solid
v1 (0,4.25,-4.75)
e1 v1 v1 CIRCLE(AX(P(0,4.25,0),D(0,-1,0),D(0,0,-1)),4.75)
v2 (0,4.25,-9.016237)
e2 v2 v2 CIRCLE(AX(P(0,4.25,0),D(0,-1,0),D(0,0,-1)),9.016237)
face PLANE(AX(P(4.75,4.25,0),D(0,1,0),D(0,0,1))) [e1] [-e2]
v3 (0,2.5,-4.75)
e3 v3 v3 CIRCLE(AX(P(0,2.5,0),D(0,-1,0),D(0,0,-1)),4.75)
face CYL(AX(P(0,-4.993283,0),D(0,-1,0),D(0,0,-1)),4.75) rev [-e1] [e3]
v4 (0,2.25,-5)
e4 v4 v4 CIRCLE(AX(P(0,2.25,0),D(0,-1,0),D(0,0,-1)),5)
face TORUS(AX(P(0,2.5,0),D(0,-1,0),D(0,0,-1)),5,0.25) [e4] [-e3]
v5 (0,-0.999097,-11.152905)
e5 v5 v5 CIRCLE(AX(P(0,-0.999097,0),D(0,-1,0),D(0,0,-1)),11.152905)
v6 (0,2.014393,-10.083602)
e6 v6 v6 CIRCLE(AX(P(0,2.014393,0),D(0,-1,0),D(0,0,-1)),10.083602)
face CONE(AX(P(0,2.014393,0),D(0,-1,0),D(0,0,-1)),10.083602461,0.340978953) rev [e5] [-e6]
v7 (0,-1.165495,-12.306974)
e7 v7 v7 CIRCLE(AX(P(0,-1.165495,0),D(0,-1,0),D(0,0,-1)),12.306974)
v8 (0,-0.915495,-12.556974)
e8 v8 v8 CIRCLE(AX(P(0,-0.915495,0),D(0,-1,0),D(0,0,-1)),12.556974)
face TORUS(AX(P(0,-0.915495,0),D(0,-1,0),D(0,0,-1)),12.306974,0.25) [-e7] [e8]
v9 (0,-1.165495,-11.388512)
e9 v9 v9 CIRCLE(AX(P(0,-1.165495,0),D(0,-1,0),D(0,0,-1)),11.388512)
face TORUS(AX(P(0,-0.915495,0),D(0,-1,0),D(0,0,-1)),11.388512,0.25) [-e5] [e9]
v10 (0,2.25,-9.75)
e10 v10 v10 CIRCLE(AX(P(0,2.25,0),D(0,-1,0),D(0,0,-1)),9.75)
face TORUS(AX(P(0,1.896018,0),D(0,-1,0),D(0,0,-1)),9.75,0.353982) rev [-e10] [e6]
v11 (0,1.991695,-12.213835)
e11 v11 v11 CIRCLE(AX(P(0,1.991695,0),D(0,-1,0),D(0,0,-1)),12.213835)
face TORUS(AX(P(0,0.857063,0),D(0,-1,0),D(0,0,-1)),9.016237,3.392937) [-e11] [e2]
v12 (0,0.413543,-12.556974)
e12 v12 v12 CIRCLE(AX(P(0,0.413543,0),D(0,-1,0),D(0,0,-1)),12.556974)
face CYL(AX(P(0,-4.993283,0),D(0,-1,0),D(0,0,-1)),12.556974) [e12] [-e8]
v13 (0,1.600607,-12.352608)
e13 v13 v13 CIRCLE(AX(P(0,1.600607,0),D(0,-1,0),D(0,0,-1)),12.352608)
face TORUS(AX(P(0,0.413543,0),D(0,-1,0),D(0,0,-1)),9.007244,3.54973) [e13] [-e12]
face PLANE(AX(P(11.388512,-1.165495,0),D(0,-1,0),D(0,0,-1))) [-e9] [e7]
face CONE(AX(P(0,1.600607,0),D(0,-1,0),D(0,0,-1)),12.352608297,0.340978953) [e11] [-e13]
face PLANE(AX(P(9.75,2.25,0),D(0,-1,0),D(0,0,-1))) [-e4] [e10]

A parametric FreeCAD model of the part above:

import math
import FreeCAD as App
import Part
import Sketcher
Q = App.Units.Quantity

doc = App.newDocument("Part")
body = doc.addObject("PartDesign::Body", "Body")

# Sketch on XY plane
sketch1 = body.newObject("Sketcher::SketchObject", "Sketch")
sketch1.AttachmentSupport = (doc.getObject("XY_Plane"), [""])
sketch1.MapMode = "FlatFace"
sketch1.addGeometry([
    Part.LineSegment(App.Vector(9.016237, 4.25, 0), App.Vector(4.75, 4.25, 0)),  # 0
    Part.LineSegment(App.Vector(4.75, 4.25, 0), App.Vector(4.75, 2.5, 0)),  # 1
    Part.ArcOfCircle(Part.Circle(App.Vector(5, 2.5, 0), App.Vector(0, 0, 1), 0.25), math.radians(-180), math.radians(-90)),  # 2
    Part.LineSegment(App.Vector(5, 2.25, 0), App.Vector(9.75, 2.25, 0)),  # 3
    Part.ArcOfCircle(Part.Circle(App.Vector(9.75, 1.896018, 0), App.Vector(0, 0, 1), 0.353982), math.radians(19.536655), math.radians(90)),  # 4
    Part.LineSegment(App.Vector(10.083602, 2.014393, 0), App.Vector(11.152905, -0.999097, 0)),  # 5
    Part.ArcOfCircle(Part.Circle(App.Vector(11.388512, -0.915495, 0), App.Vector(0, 0, 1), 0.25), math.radians(-160.463345), math.radians(-90)),  # 6
    Part.LineSegment(App.Vector(11.388512, -1.165495, 0), App.Vector(12.306974, -1.165495, 0)),  # 7
    Part.ArcOfCircle(Part.Circle(App.Vector(12.306974, -0.915495, 0), App.Vector(0, 0, 1), 0.25), math.radians(-90), math.radians(0)),  # 8
    Part.LineSegment(App.Vector(12.556974, -0.915495, 0), App.Vector(12.556974, 0.413543, 0)),  # 9
    Part.ArcOfCircle(Part.Circle(App.Vector(9.007244, 0.413543, 0), App.Vector(0, 0, 1), 3.54973), math.radians(0), math.radians(19.536655)),  # 10
    Part.LineSegment(App.Vector(12.352608, 1.600607, 0), App.Vector(12.213835, 1.991695, 0)),  # 11
    Part.ArcOfCircle(Part.Circle(App.Vector(9.016237, 0.857063, 0), App.Vector(0, 0, 1), 3.392937), math.radians(19.536655), math.radians(90)),  # 12
], False)
sketch1.addConstraint([
    Sketcher.Constraint("Coincident", 0, 2, 1, 1),
    Sketcher.Constraint("Tangent", 1, 2, 2, 1),
    Sketcher.Constraint("Tangent", 2, 2, 3, 1),
    Sketcher.Constraint("Tangent", 3, 2, 4, 2),
    Sketcher.Constraint("Tangent", 4, 1, 5, 1),
    Sketcher.Constraint("Tangent", 5, 2, 6, 1),
    Sketcher.Constraint("Tangent", 6, 2, 7, 1),
    Sketcher.Constraint("Tangent", 7, 2, 8, 1),
    Sketcher.Constraint("Tangent", 8, 2, 9, 1),
    Sketcher.Constraint("Tangent", 9, 2, 10, 1),
    Sketcher.Constraint("Tangent", 10, 2, 11, 1),
    Sketcher.Constraint("Tangent", 11, 2, 12, 1),
    Sketcher.Constraint("Tangent", 12, 2, 0, 1),
    Sketcher.Constraint("Horizontal", 0),
    Sketcher.Constraint("Vertical", 1),
    Sketcher.Constraint("Horizontal", 3),
    Sketcher.Constraint("Horizontal", 7),
    Sketcher.Constraint("Vertical", 9),
    Sketcher.Constraint("Equal", 2, 6),
    Sketcher.Constraint("Equal", 6, 8),
    Sketcher.Constraint("Parallel", 5, 11),
    Sketcher.Constraint("Radius", 2, Q("0.25 mm")),
    Sketcher.Constraint("DistanceX", -1, 1, 2, 3, Q("5 mm")),
    Sketcher.Constraint("DistanceX", 0, 2, 4, 3, Q("5 mm")),
    Sketcher.Constraint("DistanceY", 2, 2, 0, 2, Q("2 mm")),
    Sketcher.Constraint("DistanceY", -1, 1, 2, 3, Q("2.5 mm")),
    Sketcher.Constraint("Radius", 10, Q("3.54973 mm")),
    Sketcher.Constraint("Radius", 4, Q("0.353982 mm")),
    Sketcher.Constraint("Radius", 12, Q("3.392937 mm")),
    Sketcher.Constraint("DistanceX", 7, 1, 7, 2, Q("0.918462 mm")),
    Sketcher.Constraint("DistanceY", 8, 3, 10, 2, Q("2.516102 mm")),
    Sketcher.Constraint("DistanceY", 11, 2, 4, 1, Q("0.022698 mm")),
    Sketcher.Constraint("Distance", 11, Q("0.414979 mm")),
])
revolution = body.newObject("PartDesign::Revolution", "Revolution")
revolution.Profile = sketch1
revolution.ReferenceAxis = (sketch1, ["V_Axis"])
revolution.Angle = 360

doc.recompute()
